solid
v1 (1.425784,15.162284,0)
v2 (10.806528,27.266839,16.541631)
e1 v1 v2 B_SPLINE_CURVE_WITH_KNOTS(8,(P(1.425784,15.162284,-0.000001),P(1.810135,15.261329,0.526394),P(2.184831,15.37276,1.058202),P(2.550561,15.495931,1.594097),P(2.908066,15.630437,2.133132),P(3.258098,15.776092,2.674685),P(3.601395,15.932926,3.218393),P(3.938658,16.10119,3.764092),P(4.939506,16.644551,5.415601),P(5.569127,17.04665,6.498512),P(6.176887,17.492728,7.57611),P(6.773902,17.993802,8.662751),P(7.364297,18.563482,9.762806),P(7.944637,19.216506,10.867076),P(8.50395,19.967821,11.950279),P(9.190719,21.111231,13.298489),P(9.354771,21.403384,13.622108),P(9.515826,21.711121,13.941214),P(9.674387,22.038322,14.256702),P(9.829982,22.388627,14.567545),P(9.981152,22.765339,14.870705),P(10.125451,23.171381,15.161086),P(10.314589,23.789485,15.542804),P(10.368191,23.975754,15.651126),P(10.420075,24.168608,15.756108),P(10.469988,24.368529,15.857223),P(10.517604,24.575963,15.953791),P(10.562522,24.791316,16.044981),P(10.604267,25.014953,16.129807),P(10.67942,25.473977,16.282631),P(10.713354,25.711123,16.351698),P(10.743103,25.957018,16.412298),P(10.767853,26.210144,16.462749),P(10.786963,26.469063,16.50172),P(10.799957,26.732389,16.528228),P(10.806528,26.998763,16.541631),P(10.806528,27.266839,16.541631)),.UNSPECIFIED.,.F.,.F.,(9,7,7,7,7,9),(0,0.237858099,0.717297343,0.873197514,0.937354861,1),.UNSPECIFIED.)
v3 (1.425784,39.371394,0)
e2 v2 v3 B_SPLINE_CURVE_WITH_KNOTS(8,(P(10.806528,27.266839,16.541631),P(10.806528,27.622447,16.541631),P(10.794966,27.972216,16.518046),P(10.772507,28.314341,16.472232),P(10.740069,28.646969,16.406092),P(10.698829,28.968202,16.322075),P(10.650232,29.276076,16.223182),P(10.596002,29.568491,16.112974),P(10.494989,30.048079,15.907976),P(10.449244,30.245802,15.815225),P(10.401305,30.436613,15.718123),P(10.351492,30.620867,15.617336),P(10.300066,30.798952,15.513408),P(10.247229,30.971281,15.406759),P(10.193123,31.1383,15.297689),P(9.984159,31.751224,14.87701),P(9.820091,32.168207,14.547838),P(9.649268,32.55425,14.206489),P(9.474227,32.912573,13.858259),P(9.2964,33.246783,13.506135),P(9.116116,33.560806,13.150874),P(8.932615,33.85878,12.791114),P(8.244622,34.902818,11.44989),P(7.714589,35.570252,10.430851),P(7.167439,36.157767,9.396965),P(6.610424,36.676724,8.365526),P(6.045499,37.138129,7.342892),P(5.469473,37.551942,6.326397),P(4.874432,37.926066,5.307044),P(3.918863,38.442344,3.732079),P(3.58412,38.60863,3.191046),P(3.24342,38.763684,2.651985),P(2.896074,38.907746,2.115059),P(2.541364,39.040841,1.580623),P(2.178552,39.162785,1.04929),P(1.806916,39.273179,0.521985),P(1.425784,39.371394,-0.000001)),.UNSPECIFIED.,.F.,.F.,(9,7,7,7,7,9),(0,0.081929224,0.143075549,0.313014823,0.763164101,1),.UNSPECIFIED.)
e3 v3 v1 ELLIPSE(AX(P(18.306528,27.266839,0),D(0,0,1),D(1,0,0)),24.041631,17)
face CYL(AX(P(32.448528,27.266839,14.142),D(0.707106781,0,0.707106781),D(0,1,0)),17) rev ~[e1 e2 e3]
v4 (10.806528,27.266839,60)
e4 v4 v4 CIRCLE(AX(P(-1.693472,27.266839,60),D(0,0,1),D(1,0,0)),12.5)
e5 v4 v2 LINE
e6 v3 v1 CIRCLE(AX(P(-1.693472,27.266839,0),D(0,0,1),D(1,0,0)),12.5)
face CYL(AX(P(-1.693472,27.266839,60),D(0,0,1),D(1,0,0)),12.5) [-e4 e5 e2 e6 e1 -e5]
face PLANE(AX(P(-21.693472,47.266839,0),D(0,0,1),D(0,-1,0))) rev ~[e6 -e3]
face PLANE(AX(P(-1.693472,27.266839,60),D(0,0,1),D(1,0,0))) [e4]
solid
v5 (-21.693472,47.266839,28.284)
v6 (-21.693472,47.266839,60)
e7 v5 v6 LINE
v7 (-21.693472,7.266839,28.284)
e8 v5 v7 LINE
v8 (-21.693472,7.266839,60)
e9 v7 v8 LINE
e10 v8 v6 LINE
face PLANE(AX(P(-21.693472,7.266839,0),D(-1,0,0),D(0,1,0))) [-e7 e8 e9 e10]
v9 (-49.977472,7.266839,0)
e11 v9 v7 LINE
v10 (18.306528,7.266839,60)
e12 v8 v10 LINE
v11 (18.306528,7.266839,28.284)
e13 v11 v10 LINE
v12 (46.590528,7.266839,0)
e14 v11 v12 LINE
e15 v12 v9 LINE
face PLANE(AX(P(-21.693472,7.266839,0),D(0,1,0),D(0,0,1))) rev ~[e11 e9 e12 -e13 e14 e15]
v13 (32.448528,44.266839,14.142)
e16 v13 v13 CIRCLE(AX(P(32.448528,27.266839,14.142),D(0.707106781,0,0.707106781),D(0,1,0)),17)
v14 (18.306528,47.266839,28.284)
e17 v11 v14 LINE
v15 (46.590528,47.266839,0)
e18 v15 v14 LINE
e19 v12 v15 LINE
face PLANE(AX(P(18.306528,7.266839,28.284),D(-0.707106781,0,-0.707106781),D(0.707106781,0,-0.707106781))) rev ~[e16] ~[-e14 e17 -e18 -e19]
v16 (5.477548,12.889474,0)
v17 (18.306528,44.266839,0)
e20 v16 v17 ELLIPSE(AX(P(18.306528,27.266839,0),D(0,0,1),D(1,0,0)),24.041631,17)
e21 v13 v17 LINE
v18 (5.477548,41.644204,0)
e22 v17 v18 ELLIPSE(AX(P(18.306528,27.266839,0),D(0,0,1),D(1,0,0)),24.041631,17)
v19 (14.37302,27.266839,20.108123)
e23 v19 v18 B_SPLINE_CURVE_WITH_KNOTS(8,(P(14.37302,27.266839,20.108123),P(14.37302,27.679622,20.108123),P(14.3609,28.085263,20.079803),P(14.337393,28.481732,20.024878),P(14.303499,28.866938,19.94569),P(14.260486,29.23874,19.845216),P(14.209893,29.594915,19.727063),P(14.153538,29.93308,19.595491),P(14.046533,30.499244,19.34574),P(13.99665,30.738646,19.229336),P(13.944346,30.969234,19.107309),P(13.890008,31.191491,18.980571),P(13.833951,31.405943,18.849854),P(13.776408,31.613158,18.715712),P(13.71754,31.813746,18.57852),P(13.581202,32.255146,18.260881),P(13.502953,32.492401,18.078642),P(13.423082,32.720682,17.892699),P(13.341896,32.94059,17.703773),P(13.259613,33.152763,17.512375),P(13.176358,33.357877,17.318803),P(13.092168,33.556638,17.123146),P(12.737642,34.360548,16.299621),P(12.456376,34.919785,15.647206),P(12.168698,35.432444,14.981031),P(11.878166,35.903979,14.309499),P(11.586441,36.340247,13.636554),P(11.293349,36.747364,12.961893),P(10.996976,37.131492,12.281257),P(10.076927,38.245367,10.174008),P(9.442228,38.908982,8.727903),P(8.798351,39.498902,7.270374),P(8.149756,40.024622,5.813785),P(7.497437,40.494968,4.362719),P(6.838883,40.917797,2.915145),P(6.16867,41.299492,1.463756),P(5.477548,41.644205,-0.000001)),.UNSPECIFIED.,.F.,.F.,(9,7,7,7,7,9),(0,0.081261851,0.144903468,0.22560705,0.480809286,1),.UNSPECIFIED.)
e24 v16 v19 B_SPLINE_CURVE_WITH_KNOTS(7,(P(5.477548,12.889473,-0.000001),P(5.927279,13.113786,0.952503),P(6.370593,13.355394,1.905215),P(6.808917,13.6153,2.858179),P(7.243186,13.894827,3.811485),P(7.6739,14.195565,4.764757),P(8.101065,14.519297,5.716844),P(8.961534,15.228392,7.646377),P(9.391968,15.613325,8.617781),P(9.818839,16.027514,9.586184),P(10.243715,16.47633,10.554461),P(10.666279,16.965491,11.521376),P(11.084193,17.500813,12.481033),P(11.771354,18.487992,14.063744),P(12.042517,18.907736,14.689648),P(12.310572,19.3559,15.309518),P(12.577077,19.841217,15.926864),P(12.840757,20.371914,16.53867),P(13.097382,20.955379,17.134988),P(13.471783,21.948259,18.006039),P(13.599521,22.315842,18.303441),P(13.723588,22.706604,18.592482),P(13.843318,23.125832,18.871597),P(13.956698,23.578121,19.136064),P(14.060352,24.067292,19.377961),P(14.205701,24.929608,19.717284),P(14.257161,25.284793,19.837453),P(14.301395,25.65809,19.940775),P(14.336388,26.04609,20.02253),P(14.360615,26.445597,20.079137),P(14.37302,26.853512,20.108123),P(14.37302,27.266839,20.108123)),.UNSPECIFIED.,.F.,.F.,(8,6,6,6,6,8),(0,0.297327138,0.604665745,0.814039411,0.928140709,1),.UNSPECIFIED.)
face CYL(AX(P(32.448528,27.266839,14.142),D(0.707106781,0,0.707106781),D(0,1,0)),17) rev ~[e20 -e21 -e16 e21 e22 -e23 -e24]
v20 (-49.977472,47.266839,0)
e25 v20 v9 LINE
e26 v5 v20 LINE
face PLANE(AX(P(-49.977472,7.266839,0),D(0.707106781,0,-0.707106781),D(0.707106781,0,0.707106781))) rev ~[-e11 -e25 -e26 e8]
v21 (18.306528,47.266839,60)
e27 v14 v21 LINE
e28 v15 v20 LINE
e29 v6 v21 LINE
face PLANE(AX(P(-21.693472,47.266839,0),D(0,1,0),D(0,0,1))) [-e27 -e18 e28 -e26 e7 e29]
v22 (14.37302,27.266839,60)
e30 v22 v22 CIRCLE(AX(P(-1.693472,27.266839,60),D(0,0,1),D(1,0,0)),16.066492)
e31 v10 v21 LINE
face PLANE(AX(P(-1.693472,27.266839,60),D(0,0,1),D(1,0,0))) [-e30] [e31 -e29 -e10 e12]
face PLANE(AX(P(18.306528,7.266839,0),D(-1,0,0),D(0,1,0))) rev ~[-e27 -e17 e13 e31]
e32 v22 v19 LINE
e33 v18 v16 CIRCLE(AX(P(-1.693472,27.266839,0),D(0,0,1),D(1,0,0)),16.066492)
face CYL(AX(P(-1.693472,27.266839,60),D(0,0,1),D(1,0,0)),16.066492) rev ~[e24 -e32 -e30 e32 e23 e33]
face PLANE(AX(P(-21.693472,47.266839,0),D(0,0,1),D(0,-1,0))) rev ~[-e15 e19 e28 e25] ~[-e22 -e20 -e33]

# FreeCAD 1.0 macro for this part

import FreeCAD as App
import Part
import Sketcher

V = App.Vector
Q = App.Units.Quantity


def add_polygon(sketch, points):
    """Adds a closed chain of lines whose ends are joined by coincident constraints."""
    first, n = sketch.GeometryCount, len(points)
    for a, b in zip(points, points[1:] + points[:1]):
        sketch.addGeometry(Part.LineSegment(App.Vector(*a, 0), App.Vector(*b, 0)), False)
    for i in range(n):
        sketch.addConstraint(Sketcher.Constraint("Coincident", first + i, 2, first + (i + 1) % n, 1))

doc = App.newDocument("Part")
body = doc.addObject("PartDesign::Body", "Body")
body.AllowCompound = True

# Sketch on XY plane
sketch1 = body.newObject("Sketcher::SketchObject", "Sketch")
sketch1.AttachmentSupport = (doc.getObject("XY_Plane"), [""])
sketch1.MapMode = "FlatFace"
add_polygon(sketch1, [(-22, 47), (-22, 7), (18, 7), (18, 47)])  # lines 0-3
sketch1.addConstraint(Sketcher.Constraint("Vertical", 0))
sketch1.addConstraint(Sketcher.Constraint("Horizontal", 1))
sketch1.addConstraint(Sketcher.Constraint("Vertical", 2))
sketch1.addConstraint(Sketcher.Constraint("Horizontal", 3))
sketch1.addConstraint(Sketcher.Constraint("Equal", 3, 0))
sketch1.addConstraint(Sketcher.Constraint("DistanceX", 1, 1, 1, 2, Q("40 mm")))
sketch1.addConstraint(Sketcher.Constraint("DistanceX", 0, 2, -1, 1, Q("21.693472 mm")))
sketch1.addConstraint(Sketcher.Constraint("DistanceY", -1, 1, 0, 2, Q("7.266839 mm")))
pad1 = body.newObject("PartDesign::Pad", "Pad")
pad1.Profile = sketch1
pad1.Length = 60

# Sketch on YZ plane
sketch2 = body.newObject("Sketcher::SketchObject", "Sketch001")
sketch2.AttachmentSupport = (doc.getObject("YZ_Plane"), [""])
sketch2.MapMode = "FlatFace"
sketch2.AttachmentOffset = App.Placement(V(0, 0, 18.306528), App.Rotation())
add_polygon(sketch2, [(7, 28), (7, 0), (47, 0), (47, 28)])  # lines 0-3
sketch2.addConstraint(Sketcher.Constraint("Vertical", 0))
sketch2.addConstraint(Sketcher.Constraint("Horizontal", 1))
sketch2.addConstraint(Sketcher.Constraint("Vertical", 2))
sketch2.addConstraint(Sketcher.Constraint("Horizontal", 3))
sketch2.addConstraint(Sketcher.Constraint("PointOnObject", 0, 2, -1))
sketch2.addConstraint(Sketcher.Constraint("DistanceX", 1, 1, 1, 2, Q("40 mm")))
sketch2.addConstraint(Sketcher.Constraint("DistanceY", 0, 2, 0, 1, Q("28.284 mm")))
sketch2.addConstraint(Sketcher.Constraint("DistanceX", -1, 1, 0, 2, Q("7.266839 mm")))
pad2 = body.newObject("PartDesign::Pad", "Pad001")
pad2.Profile = sketch2
pad2.Length = 28.284

# Sketch on YZ plane
sketch3 = body.newObject("Sketcher::SketchObject", "Sketch002")
sketch3.AttachmentSupport = (doc.getObject("YZ_Plane"), [""])
sketch3.MapMode = "FlatFace"
sketch3.AttachmentOffset = App.Placement(V(0, 0, -21.693472), App.Rotation())
add_polygon(sketch3, [(47, 28), (47, 0), (7, 0), (7, 28)])  # lines 0-3
sketch3.addConstraint(Sketcher.Constraint("Vertical", 0))
sketch3.addConstraint(Sketcher.Constraint("Horizontal", 1))
sketch3.addConstraint(Sketcher.Constraint("Vertical", 2))
sketch3.addConstraint(Sketcher.Constraint("Horizontal", 3))
sketch3.addConstraint(Sketcher.Constraint("PointOnObject", 0, 2, -1))
sketch3.addConstraint(Sketcher.Constraint("DistanceX", 1, 2, 1, 1, Q("40 mm")))
sketch3.addConstraint(Sketcher.Constraint("DistanceY", 0, 2, 0, 1, Q("28.284 mm")))
sketch3.addConstraint(Sketcher.Constraint("DistanceX", -1, 1, 0, 2, Q("47.266839 mm")))
pad3 = body.newObject("PartDesign::Pad", "Pad002")
pad3.Profile = sketch3
pad3.Length = 28.284
pad3.Reversed = True

# Sketch on XZ plane
sketch4 = body.newObject("Sketcher::SketchObject", "Sketch003")
sketch4.AttachmentSupport = (doc.getObject("XZ_Plane"), [""])
sketch4.MapMode = "FlatFace"
sketch4.AttachmentOffset = App.Placement(V(0, 0, -7.266839), App.Rotation())
add_polygon(sketch4, [(-50, 0), (-22, 28), (-50, 28)])  # lines 0-2
add_polygon(sketch4, [(18, 28), (47, 0), (47, 28)])  # lines 3-5
sketch4.addConstraint(Sketcher.Constraint("Horizontal", 1))
sketch4.addConstraint(Sketcher.Constraint("Vertical", 2))
sketch4.addConstraint(Sketcher.Constraint("Vertical", 4))
sketch4.addConstraint(Sketcher.Constraint("Horizontal", 5))
sketch4.addConstraint(Sketcher.Constraint("PointOnObject", 2, 2, -1))
sketch4.addConstraint(Sketcher.Constraint("PointOnObject", 3, 2, -1))
sketch4.addConstraint(Sketcher.Constraint("Perpendicular", 0, 3))
sketch4.addConstraint(Sketcher.Constraint("Horizontal", 1, 2, 4, 2))
sketch4.addConstraint(Sketcher.Constraint("Equal", 1, 5))
sketch4.addConstraint(Sketcher.Constraint("DistanceX", 0, 2, 5, 2, Q("40 mm")))
sketch4.addConstraint(Sketcher.Constraint("DistanceX", 1, 2, 1, 1, Q("28.284 mm")))
sketch4.addConstraint(Sketcher.Constraint("DistanceX", 0, 2, -1, 1, Q("21.693472 mm")))
pocket1 = body.newObject("PartDesign::Pocket", "Pocket")
pocket1.Profile = sketch4
pocket1.Type = "ThroughAll"

# Sketch on XY plane
sketch5 = body.newObject("Sketcher::SketchObject", "Sketch004")
sketch5.AttachmentSupport = (doc.getObject("XY_Plane"), [""])
sketch5.MapMode = "FlatFace"
sketch5.AttachmentOffset = App.Placement(V(0, 0, 60), App.Rotation())
sketch5.addGeometry(Part.Circle(V(-2, 27, 0), V(0, 0, 1), 16), False)
sketch5.addGeometry(Part.Circle(V(-2, 27, 0), V(0, 0, 1), 12), False)
sketch5.addConstraint(Sketcher.Constraint("Coincident", 1, 3, 0, 3))
sketch5.addConstraint(Sketcher.Constraint("Diameter", 1, Q("25 mm")))
sketch5.addConstraint(Sketcher.Constraint("Diameter", 0, Q("32.132984 mm")))
sketch5.addConstraint(Sketcher.Constraint("DistanceY", -1, 1, 0, 3, Q("27.266839 mm")))
sketch5.addConstraint(Sketcher.Constraint("DistanceX", 0, 3, -1, 1, Q("1.693472 mm")))
pocket2 = body.newObject("PartDesign::Pocket", "Pocket001")
pocket2.Profile = sketch5
pocket2.Type = "ThroughAll"

# Sketch on an angled plane
sketch6 = body.newObject("Sketcher::SketchObject", "Sketch005")
sketch6.Placement = App.Placement(V(23.295264, 0, 23.295264), App.Rotation(V(0, 1, 0), V(-0.707106781, 0, 0.707106781), V(0.707106781, 0, 0.707106781), "ZXY"))
sketch6.addGeometry(Part.Circle(V(27, -13, 0), V(0, 0, 1), 17), False)
sketch6.addConstraint(Sketcher.Constraint("Diameter", 0, Q("34 mm")))
sketch6.addConstraint(Sketcher.Constraint("DistanceX", -1, 1, 0, 3, Q("27.266839 mm")))
sketch6.addConstraint(Sketcher.Constraint("DistanceY", 0, 3, -1, 1, Q("12.94467 mm")))
pocket3 = body.newObject("PartDesign::Pocket", "Pocket002")
pocket3.Profile = sketch6
pocket3.Type = "ThroughAll"

doc.recompute()
